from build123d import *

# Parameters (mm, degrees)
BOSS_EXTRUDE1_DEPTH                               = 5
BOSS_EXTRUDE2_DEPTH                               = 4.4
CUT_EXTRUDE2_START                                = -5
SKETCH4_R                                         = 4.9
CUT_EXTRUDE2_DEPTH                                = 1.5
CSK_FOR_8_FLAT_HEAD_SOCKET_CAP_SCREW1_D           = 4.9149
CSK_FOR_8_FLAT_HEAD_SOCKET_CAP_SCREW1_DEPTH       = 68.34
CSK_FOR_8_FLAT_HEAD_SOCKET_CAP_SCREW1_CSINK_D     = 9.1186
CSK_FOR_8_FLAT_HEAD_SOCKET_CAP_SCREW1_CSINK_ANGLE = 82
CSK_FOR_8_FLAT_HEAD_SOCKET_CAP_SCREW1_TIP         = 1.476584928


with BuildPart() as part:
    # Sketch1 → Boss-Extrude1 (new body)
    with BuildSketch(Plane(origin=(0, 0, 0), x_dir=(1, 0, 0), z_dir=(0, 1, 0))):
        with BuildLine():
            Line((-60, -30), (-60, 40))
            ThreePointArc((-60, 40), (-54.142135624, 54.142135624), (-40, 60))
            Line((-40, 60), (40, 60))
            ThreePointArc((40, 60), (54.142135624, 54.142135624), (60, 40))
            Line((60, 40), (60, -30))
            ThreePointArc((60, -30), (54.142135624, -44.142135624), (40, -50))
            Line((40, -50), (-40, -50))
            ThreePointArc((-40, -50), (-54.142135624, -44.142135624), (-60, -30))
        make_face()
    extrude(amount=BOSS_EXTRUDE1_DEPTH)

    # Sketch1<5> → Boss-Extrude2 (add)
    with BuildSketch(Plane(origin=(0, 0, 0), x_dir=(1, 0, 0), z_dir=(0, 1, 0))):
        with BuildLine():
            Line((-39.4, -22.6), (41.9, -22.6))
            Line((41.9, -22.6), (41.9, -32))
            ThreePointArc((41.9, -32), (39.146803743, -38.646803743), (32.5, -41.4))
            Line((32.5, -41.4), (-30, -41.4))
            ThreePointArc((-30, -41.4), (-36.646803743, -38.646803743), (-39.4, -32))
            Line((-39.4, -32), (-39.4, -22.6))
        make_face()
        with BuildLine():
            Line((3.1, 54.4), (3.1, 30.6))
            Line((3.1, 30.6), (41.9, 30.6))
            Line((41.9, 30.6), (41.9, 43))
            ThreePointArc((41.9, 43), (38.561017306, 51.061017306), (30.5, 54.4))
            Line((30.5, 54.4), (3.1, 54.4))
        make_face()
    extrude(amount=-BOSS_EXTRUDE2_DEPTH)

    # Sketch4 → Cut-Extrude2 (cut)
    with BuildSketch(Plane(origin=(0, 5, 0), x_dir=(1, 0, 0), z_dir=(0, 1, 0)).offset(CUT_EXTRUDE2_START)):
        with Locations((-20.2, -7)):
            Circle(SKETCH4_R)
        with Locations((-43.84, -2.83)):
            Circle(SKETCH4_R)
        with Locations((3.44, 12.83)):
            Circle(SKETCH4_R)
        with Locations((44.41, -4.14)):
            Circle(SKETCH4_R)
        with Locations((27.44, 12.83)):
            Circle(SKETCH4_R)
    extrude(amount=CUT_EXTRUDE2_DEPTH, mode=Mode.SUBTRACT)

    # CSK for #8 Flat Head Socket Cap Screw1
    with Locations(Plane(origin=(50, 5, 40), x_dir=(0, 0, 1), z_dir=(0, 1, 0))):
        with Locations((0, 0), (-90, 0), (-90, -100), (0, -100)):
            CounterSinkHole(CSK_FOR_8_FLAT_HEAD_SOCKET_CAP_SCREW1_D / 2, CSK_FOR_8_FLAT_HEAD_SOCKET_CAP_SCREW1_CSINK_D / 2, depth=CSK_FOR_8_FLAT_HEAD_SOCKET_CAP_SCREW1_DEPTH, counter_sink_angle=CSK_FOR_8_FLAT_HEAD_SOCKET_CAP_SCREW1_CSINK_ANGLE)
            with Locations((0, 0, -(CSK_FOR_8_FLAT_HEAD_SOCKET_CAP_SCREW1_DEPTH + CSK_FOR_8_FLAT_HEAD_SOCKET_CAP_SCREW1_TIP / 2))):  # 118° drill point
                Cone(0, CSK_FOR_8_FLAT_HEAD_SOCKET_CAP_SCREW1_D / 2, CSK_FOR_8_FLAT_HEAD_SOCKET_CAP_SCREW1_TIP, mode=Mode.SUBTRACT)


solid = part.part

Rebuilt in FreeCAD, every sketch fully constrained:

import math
import FreeCAD as App
import Part
import Sketcher

V = App.Vector

doc = App.newDocument("Part")
params = doc.addObject("Spreadsheet::Sheet", "Params")
for row, (alias, value) in enumerate([
    ("sketch1_radius", "20 mm"),
    ("sketch1_width", "80 mm"),
    ("sketch1_height", "70 mm"),
    ("pad1_length", "5 mm"),
    ("sketch2_radius", "9.4 mm"),
    ("sketch2_radius2", "11.4 mm"),
    ("sketch2_width", "81.3 mm"),
    ("sketch2_width2", "38.8 mm"),
    ("sketch2_height", "9.4 mm"),
    ("pad2_length", "4.4 mm"),
    ("sketch3_diameter", "9.8 mm"),
    ("pocket1_length", "1.5 mm"),
    ("hole_diameter", "4.9149 mm"),
    ("hole_depth", "68.34 mm"),
    ("hole_csink_diameter", "9.1186 mm"),
], start=1):
    params.set(f"A{row}", alias)
    params.set(f"B{row}", "=" + value)
    params.setAlias(f"B{row}", alias)

body = doc.addObject("PartDesign::Body", "Body")

sketch1 = body.newObject("Sketcher::SketchObject", "Sketch")
sketch1.AttachmentSupport = (doc.getObject("XZ_Plane"), [""])
sketch1.MapMode = "FlatFace"
sketch1.addGeometry([
    Part.LineSegment(V(-60, -40, 0), V(-60, 30, 0)),
    Part.ArcOfCircle(Part.Circle(V(-40, 30, 0), V(0, 0, 1), 20), math.radians(90), math.radians(180)),
    Part.LineSegment(V(-40, 50, 0), V(40, 50, 0)),
    Part.ArcOfCircle(Part.Circle(V(40, 30, 0), V(0, 0, 1), 20), math.radians(0), math.radians(90)),
    Part.LineSegment(V(60, 30, 0), V(60, -40, 0)),
    Part.ArcOfCircle(Part.Circle(V(40, -40, 0), V(0, 0, 1), 20), math.radians(-90), math.radians(0)),
    Part.LineSegment(V(40, -60, 0), V(-40, -60, 0)),
    Part.ArcOfCircle(Part.Circle(V(-40, -40, 0), V(0, 0, 1), 20), math.radians(180), math.radians(270)),
], False)
sketch1.addConstraint([
    Sketcher.Constraint("Tangent", 0, 2, 1, 2),
    Sketcher.Constraint("Tangent", 1, 1, 2, 1),
    Sketcher.Constraint("Tangent", 2, 2, 3, 2),
    Sketcher.Constraint("Tangent", 3, 1, 4, 1),
    Sketcher.Constraint("Tangent", 4, 2, 5, 2),
    Sketcher.Constraint("Tangent", 5, 1, 6, 1),
    Sketcher.Constraint("Tangent", 6, 2, 7, 2),
    Sketcher.Constraint("Tangent", 7, 1, 0, 1),
    Sketcher.Constraint("Vertical", 0),
    Sketcher.Constraint("Horizontal", 2),
    Sketcher.Constraint("Vertical", 4),
    Sketcher.Constraint("Horizontal", 6),
    Sketcher.Constraint("Equal", 1, 3),
    Sketcher.Constraint("Equal", 3, 5),
    Sketcher.Constraint("Equal", 5, 7),
    Sketcher.Constraint("Radius", 1, 20.0),
    Sketcher.Constraint("DistanceX", 2, 1, 2, 2, 80.0),
    Sketcher.Constraint("DistanceY", 0, 1, 0, 2, 70.0),
    Sketcher.Constraint("DistanceX", 1, 3, -1, 1, 40.0),
    Sketcher.Constraint("DistanceY", -1, 1, 1, 3, 30.0),
])
sketch1.setExpression("Constraints[15]", "Params.sketch1_radius")
sketch1.setExpression("Constraints[16]", "Params.sketch1_width")
sketch1.setExpression("Constraints[17]", "Params.sketch1_height")
pad1 = body.newObject("PartDesign::Pad", "Pad")
pad1.Profile = sketch1
pad1.setExpression("Length", "Params.pad1_length")
pad1.Reversed = True

sketch2 = body.newObject("Sketcher::SketchObject", "Sketch001")
sketch2.AttachmentSupport = (doc.getObject("XZ_Plane"), [""])
sketch2.MapMode = "FlatFace"
sketch2.addGeometry([
    Part.LineSegment(V(41.9, 22.6, 0), V(-39.4, 22.6, 0)),
    Part.LineSegment(V(-39.4, 22.6, 0), V(-39.4, 32, 0)),
    Part.ArcOfCircle(Part.Circle(V(-30, 32, 0), V(0, 0, 1), 9.4), math.radians(90), math.radians(180)),
    Part.LineSegment(V(-30, 41.4, 0), V(32.5, 41.4, 0)),
    Part.ArcOfCircle(Part.Circle(V(32.5, 32, 0), V(0, 0, 1), 9.4), math.radians(0), math.radians(90)),
    Part.LineSegment(V(41.9, 32, 0), V(41.9, 22.6, 0)),
    Part.LineSegment(V(3.1, -54.4, 0), V(3.1, -30.6, 0)),
    Part.LineSegment(V(3.1, -30.6, 0), V(41.9, -30.6, 0)),
    Part.LineSegment(V(41.9, -30.6, 0), V(41.9, -43, 0)),
    Part.ArcOfCircle(Part.Circle(V(30.5, -43, 0), V(0, 0, 1), 11.4), math.radians(-90), math.radians(0)),
    Part.LineSegment(V(30.5, -54.4, 0), V(3.1, -54.4, 0)),
], False)
sketch2.addConstraint([
    Sketcher.Constraint("Coincident", 0, 2, 1, 1),
    Sketcher.Constraint("Tangent", 1, 2, 2, 2),
    Sketcher.Constraint("Tangent", 2, 1, 3, 1),
    Sketcher.Constraint("Tangent", 3, 2, 4, 2),
    Sketcher.Constraint("Tangent", 4, 1, 5, 1),
    Sketcher.Constraint("Coincident", 5, 2, 0, 1),
    Sketcher.Constraint("Coincident", 6, 2, 7, 1),
    Sketcher.Constraint("Coincident", 7, 2, 8, 1),
    Sketcher.Constraint("Tangent", 8, 2, 9, 2),
    Sketcher.Constraint("Tangent", 9, 1, 10, 1),
    Sketcher.Constraint("Coincident", 10, 2, 6, 1),
    Sketcher.Constraint("Horizontal", 0),
    Sketcher.Constraint("Vertical", 1),
    Sketcher.Constraint("Horizontal", 3),
    Sketcher.Constraint("Vertical", 5),
    Sketcher.Constraint("Vertical", 6),
    Sketcher.Constraint("Horizontal", 7),
    Sketcher.Constraint("Vertical", 8),
    Sketcher.Constraint("Horizontal", 10),
    Sketcher.Constraint("Equal", 2, 4),
    Sketcher.Constraint("Vertical", 5, 2, 7, 2),
    Sketcher.Constraint("Radius", 2, 9.4),
    Sketcher.Constraint("Radius", 9, 11.4),
    Sketcher.Constraint("DistanceX", 0, 2, 0, 1, 81.3),
    Sketcher.Constraint("DistanceX", 7, 1, 7, 2, 38.8),
    Sketcher.Constraint("DistanceY", 1, 1, 1, 2, 9.4),
    Sketcher.Constraint("DistanceY", 6, 1, 6, 2, 23.8),
    Sketcher.Constraint("DistanceX", 2, 3, -1, 1, 30.0),
    Sketcher.Constraint("DistanceY", -1, 1, 2, 3, 32.0),
    Sketcher.Constraint("DistanceY", 9, 3, -1, 1, 43.0),
])
sketch2.setExpression("Constraints[21]", "Params.sketch2_radius")
sketch2.setExpression("Constraints[22]", "Params.sketch2_radius2")
sketch2.setExpression("Constraints[23]", "Params.sketch2_width")
sketch2.setExpression("Constraints[24]", "Params.sketch2_width2")
sketch2.setExpression("Constraints[25]", "Params.sketch2_height")
pad2 = body.newObject("PartDesign::Pad", "Pad001")
pad2.Profile = sketch2
pad2.setExpression("Length", "Params.pad2_length")

sketch3 = body.newObject("Sketcher::SketchObject", "Sketch002")
sketch3.AttachmentSupport = (doc.getObject("XZ_Plane"), [""])
sketch3.MapMode = "FlatFace"
sketch3.addGeometry([
    Part.Circle(V(-20.2, 7, 0), V(0, 0, 1), 4.9),
    Part.Circle(V(-43.84, 2.83, 0), V(0, 0, 1), 4.9),
    Part.Circle(V(3.44, -12.83, 0), V(0, 0, 1), 4.9),
    Part.Circle(V(44.41, 4.14, 0), V(0, 0, 1), 4.9),
    Part.Circle(V(27.44, -12.83, 0), V(0, 0, 1), 4.9),
], False)
sketch3.addConstraint([
    Sketcher.Constraint("Equal", 0, 1),
    Sketcher.Constraint("Equal", 1, 2),
    Sketcher.Constraint("Equal", 2, 3),
    Sketcher.Constraint("Equal", 3, 4),
    Sketcher.Constraint("Horizontal", 2, 3, 4, 3),
    Sketcher.Constraint("Diameter", 0, 9.8),
    Sketcher.Constraint("DistanceY", -1, 1, 0, 3, 7.0),
    Sketcher.Constraint("DistanceX", 2, 3, 4, 3, 24.0),
    Sketcher.Constraint("DistanceX", 0, 3, -1, 1, 20.2),
    Sketcher.Constraint("DistanceX", 1, 3, -1, 1, 43.84),
    Sketcher.Constraint("DistanceY", -1, 1, 1, 3, 2.83),
    Sketcher.Constraint("DistanceX", -1, 1, 2, 3, 3.44),
    Sketcher.Constraint("DistanceY", 2, 3, -1, 1, 12.83),
    Sketcher.Constraint("DistanceX", -1, 1, 3, 3, 44.41),
    Sketcher.Constraint("DistanceY", -1, 1, 3, 3, 4.14),
])
sketch3.setExpression("Constraints[5]", "Params.sketch3_diameter")
pocket1 = body.newObject("PartDesign::Pocket", "Pocket")
pocket1.Profile = sketch3
pocket1.setExpression("Length", "Params.pocket1_length")

sketch4 = body.newObject("Sketcher::SketchObject", "Sketch003")
sketch4.AttachmentSupport = (doc.getObject("XZ_Plane"), [""])
sketch4.MapMode = "FlatFace"
sketch4.AttachmentOffset = App.Placement(V(0, 0, -5), App.Rotation())
sketch4.addGeometry([
    Part.Circle(V(50, 40, 0), V(0, 0, 1), 2.45745),
    Part.Circle(V(50, -50, 0), V(0, 0, 1), 2.45745),
    Part.Circle(V(-50, -50, 0), V(0, 0, 1), 2.45745),
    Part.Circle(V(-50, 40, 0), V(0, 0, 1), 2.45745),
], False)
sketch4.addConstraint([
    Sketcher.Constraint("Equal", 0, 1),
    Sketcher.Constraint("Equal", 1, 2),
    Sketcher.Constraint("Equal", 2, 3),
    Sketcher.Constraint("Symmetric", 1, 3, 2, 3, -2),
    Sketcher.Constraint("Symmetric", 0, 3, 3, 3, -2),
    Sketcher.Constraint("Vertical", 0, 3, 1, 3),
    Sketcher.Constraint("DistanceX", -1, 1, 0, 3, 50.0),
    Sketcher.Constraint("DistanceY", -1, 1, 0, 3, 40.0),
    Sketcher.Constraint("DistanceY", 1, 3, -1, 1, 50.0),
    Sketcher.Constraint("Diameter", 0, 4.9149),
])
doc.recompute()
hole = body.newObject("PartDesign::Hole", "Hole")
hole.Profile = sketch4
hole.ThreadType = "None"
hole.setExpression("Diameter", "Params.hole_diameter")
hole.DepthType = "Dimension"
hole.setExpression("Depth", "Params.hole_depth")
hole.DrillPoint = "Angled"
hole.DrillPointAngle = 118
hole.HoleCutType = "Countersink"
hole.setExpression("HoleCutDiameter", "Params.hole_csink_diameter")
hole.HoleCutCountersinkAngle = 82
hole.Reversed = True

doc.recompute()
